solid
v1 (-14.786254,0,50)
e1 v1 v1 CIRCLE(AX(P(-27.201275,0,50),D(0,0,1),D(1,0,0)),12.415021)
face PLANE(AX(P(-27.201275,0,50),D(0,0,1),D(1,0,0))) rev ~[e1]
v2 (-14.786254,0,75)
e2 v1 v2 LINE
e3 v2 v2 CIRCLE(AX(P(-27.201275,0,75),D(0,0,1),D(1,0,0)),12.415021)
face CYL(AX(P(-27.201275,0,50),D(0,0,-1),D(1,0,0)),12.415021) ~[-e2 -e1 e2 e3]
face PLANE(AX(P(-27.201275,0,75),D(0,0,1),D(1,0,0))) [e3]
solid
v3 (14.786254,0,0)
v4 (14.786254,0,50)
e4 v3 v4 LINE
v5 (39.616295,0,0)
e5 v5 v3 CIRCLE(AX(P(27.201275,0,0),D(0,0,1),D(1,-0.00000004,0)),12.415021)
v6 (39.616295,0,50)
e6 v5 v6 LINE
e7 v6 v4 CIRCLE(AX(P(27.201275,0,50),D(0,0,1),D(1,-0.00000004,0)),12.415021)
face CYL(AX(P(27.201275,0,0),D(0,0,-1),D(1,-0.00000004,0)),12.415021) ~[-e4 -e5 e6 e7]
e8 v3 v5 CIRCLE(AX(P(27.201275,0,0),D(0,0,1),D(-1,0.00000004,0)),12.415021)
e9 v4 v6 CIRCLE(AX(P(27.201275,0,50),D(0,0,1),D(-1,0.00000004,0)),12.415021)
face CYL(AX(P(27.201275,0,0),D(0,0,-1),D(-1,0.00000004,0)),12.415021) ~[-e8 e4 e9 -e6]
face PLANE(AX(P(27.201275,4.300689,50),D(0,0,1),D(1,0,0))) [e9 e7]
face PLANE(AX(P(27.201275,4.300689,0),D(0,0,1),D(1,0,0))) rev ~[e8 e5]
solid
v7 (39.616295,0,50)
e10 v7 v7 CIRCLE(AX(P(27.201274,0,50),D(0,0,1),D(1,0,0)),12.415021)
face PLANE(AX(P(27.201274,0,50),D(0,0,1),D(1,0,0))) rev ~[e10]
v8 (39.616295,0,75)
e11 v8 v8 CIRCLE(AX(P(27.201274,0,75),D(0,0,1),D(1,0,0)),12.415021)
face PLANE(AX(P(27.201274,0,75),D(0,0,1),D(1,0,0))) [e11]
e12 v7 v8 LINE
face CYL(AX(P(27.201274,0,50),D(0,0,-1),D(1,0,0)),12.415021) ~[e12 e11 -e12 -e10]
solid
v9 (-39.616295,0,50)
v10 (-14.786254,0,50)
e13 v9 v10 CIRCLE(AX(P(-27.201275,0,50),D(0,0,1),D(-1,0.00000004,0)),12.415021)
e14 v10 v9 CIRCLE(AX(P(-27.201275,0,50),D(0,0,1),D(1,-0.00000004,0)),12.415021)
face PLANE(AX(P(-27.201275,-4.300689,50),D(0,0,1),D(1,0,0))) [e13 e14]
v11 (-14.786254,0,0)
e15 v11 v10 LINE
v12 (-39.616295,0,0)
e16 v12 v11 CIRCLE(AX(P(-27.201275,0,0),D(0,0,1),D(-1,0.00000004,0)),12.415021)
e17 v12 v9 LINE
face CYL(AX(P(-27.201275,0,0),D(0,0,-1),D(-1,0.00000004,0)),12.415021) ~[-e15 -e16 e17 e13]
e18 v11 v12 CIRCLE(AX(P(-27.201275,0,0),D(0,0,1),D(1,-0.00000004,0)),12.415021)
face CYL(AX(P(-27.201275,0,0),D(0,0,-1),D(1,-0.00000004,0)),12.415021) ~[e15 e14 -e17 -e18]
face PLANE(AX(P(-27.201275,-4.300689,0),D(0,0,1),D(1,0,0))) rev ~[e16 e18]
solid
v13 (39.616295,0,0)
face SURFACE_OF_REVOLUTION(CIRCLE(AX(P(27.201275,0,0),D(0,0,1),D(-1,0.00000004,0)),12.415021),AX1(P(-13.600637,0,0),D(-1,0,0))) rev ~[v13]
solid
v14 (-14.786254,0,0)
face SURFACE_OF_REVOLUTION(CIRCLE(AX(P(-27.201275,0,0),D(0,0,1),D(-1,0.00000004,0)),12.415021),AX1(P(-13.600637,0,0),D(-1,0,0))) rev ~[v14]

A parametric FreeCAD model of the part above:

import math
import FreeCAD as App
import Part
import Sketcher

doc = App.newDocument("Part")
body = doc.addObject("PartDesign::Body", "Body")
body.AllowCompound = True

# Sketch on XY plane
sketch1 = doc.addObject("Sketcher::SketchObject", "Sketch")
body.addObject(sketch1)
sketch1.AttachmentSupport = (doc.XY_Plane, [""])
sketch1.MapMode = "FlatFace"
sketch1.addGeometry([
    Part.ArcOfCircle(Part.Circle(App.Vector(-27.201275, 0, 0), App.Vector(0, 0, 1), 12.415021), math.radians(179.999998), math.radians(360.000002)),
    Part.ArcOfCircle(Part.Circle(App.Vector(-27.201275, 0, 0), App.Vector(0, 0, 1), 12.415021), math.radians(-0.000002), math.radians(180.000002)),
    Part.ArcOfCircle(Part.Circle(App.Vector(27.201275, 0, 0), App.Vector(0, 0, 1), 12.415021), math.radians(-0.000002), math.radians(180.000002)),
    Part.ArcOfCircle(Part.Circle(App.Vector(27.201275, 0, 0), App.Vector(0, 0, 1), 12.415021), math.radians(179.999998), math.radians(360.000002)),
], False)
sketch1.addConstraint([
    Sketcher.Constraint("Tangent", 0, 1, 1, 2),
    Sketcher.Constraint("Coincident", 1, 1, 0, 2),
    Sketcher.Constraint("Tangent", 2, 1, 3, 2),
    Sketcher.Constraint("Coincident", 3, 1, 2, 2),
    Sketcher.Constraint("Equal", 1, 2),
    Sketcher.Constraint("Symmetric", 0, 3, 2, 3, -1, 1),
    Sketcher.Constraint("PointOnObject", 0, 3, -1),
    Sketcher.Constraint("PointOnObject", 0, 1, -1),
    Sketcher.Constraint("PointOnObject", 1, 1, -1),
    Sketcher.Constraint("PointOnObject", 2, 1, -1),
    Sketcher.Constraint("PointOnObject", 3, 1, -1),
    Sketcher.Constraint("Radius", 0, 12.415021),
    Sketcher.Constraint("DistanceX", 1, 3, 2, 3, 54.402549),
])
pad1 = doc.addObject("PartDesign::Pad", "Pad")
body.addObject(pad1)
pad1.Profile = sketch1
pad1.Length = 50
body2 = doc.addObject("PartDesign::Body", "Body001")
body2.AllowCompound = True

# Sketch on XY plane
sketch2 = doc.addObject("Sketcher::SketchObject", "Sketch001")
body2.addObject(sketch2)
sketch2.AttachmentSupport = (doc.getObject("XY_Plane001"), [""])
sketch2.MapMode = "FlatFace"
sketch2.addGeometry([
    Part.ArcOfCircle(Part.Circle(App.Vector(-27.201275, 0, 0), App.Vector(0, 0, 1), 12.415021), math.radians(179.999998), math.radians(360.000002)),
    Part.LineSegment(App.Vector(-14.786254, 0, 0), App.Vector(-39.616295, 0, 0)),
    Part.ArcOfCircle(Part.Circle(App.Vector(27.201275, 0, 0), App.Vector(0, 0, 1), 12.415021), math.radians(179.999998), math.radians(360.000002)),
    Part.LineSegment(App.Vector(39.616295, 0, 0), App.Vector(14.786254, 0, 0)),
], False)
sketch2.addConstraint([
    Sketcher.Constraint("Coincident", 0, 1, 1, 2),
    Sketcher.Constraint("Coincident", 1, 1, 0, 2),
    Sketcher.Constraint("Coincident", 2, 1, 3, 2),
    Sketcher.Constraint("Coincident", 3, 1, 2, 2),
    Sketcher.Constraint("Horizontal", 1),
    Sketcher.Constraint("Horizontal", 3),
    Sketcher.Constraint("Equal", 0, 2),
    Sketcher.Constraint("Symmetric", 0, 3, 2, 3, -1, 1),
    Sketcher.Constraint("PointOnObject", 0, 3, -1),
    Sketcher.Constraint("PointOnObject", 0, 1, -1),
    Sketcher.Constraint("PointOnObject", 2, 1, -1),
    Sketcher.Constraint("Radius", 0, 12.415021),
    Sketcher.Constraint("DistanceX", 0, 3, 2, 3, 54.402549),
])
revolution = doc.addObject("PartDesign::Revolution", "Revolution")
body2.addObject(revolution)
revolution.Profile = sketch2
revolution.ReferenceAxis = (sketch2, ["H_Axis"])
revolution.Angle = 360
body3 = doc.addObject("PartDesign::Body", "Body002")
body3.AllowCompound = True

# Sketch on XY plane
sketch3 = doc.addObject("Sketcher::SketchObject", "Sketch002")
body3.addObject(sketch3)
sketch3.AttachmentSupport = (doc.getObject("XY_Plane002"), [""])
sketch3.MapMode = "FlatFace"
sketch3.AttachmentOffset = App.Placement(App.Vector(0, 0, 50), App.Rotation())
sketch3.addGeometry([
    Part.Circle(App.Vector(27.201274, 0, 0), App.Vector(0, 0, 1), 12.415021),
    Part.Circle(App.Vector(-27.201275, 0, 0), App.Vector(0, 0, 1), 12.415021),
], False)
sketch3.addConstraint([
    Sketcher.Constraint("Equal", 0, 1),
    Sketcher.Constraint("Symmetric", 0, 3, 1, 3, -1, 1),
    Sketcher.Constraint("PointOnObject", 0, 3, -1),
    Sketcher.Constraint("Diameter", 0, 24.830042),
    Sketcher.Constraint("DistanceX", 1, 3, 0, 3, 54.402549),
])
pad2 = doc.addObject("PartDesign::Pad", "Pad001")
body3.addObject(pad2)
pad2.Profile = sketch3
pad2.Length = 25

doc.recompute()
